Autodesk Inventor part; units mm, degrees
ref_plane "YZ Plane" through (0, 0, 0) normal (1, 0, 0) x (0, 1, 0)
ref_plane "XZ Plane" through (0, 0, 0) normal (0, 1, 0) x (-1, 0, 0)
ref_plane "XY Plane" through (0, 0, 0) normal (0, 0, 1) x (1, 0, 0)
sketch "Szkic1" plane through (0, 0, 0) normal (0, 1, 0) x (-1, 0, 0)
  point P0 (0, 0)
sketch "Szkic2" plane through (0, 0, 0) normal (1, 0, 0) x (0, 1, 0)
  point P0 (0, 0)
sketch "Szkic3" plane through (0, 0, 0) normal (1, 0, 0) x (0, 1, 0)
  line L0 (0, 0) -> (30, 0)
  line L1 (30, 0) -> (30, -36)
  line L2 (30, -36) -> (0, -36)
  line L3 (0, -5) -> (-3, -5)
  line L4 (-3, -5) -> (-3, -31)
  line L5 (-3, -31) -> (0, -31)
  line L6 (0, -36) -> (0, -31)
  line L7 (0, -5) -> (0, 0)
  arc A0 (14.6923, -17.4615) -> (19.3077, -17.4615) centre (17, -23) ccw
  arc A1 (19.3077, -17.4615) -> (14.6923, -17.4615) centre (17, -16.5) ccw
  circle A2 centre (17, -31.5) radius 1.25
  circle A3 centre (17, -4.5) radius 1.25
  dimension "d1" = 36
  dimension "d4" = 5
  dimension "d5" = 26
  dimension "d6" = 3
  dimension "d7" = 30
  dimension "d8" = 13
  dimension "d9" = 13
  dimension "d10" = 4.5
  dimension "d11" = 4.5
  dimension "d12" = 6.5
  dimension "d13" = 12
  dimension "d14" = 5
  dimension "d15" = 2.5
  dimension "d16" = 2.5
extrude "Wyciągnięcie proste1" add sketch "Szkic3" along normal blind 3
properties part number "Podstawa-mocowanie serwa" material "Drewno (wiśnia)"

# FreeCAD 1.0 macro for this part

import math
import FreeCAD as App
import Part
import Sketcher
from FreeCAD import Vector


def add_polygon(sketch, points):
    """Adds a closed chain of lines whose ends are joined by coincident constraints."""
    first, n = sketch.GeometryCount, len(points)
    for a, b in zip(points, points[1:] + points[:1]):
        sketch.addGeometry(Part.LineSegment(App.Vector(*a, 0), App.Vector(*b, 0)), False)
    for i in range(n):
        sketch.addConstraint(Sketcher.Constraint("Coincident", first + i, 2, first + (i + 1) % n, 1))

doc = App.newDocument("Part")
body = doc.addObject("PartDesign::Body", "Body")

sketch1 = doc.addObject("Sketcher::SketchObject", "Sketch")
body.addObject(sketch1)
sketch1.AttachmentSupport = (doc.YZ_Plane, [""])
sketch1.MapMode = "FlatFace"
add_polygon(sketch1, [(30, 0), (0, 0), (0, -5), (-3, -5), (-3, -31), (0, -31), (0, -36), (30, -36)])
sketch1.addGeometry(Part.Circle(Vector(17, -31.5, 0), Vector(0, 0, 1), 1.25), False)
sketch1.addGeometry(Part.ArcOfCircle(Part.Circle(Vector(17, -23, 0), Vector(0, 0, 1), 6.000038), math.radians(112.619791), math.radians(427.380209)), False)
sketch1.addGeometry(Part.ArcOfCircle(Part.Circle(Vector(17, -16.5, 0), Vector(0, 0, 1), 2.499992), math.radians(-22.618983), math.radians(202.618983)), False)
sketch1.addGeometry(Part.Circle(Vector(17, -4.5, 0), Vector(0, 0, 1), 1.25), False)
sketch1.addConstraint(Sketcher.Constraint("Coincident", 9, 1, 10, 2))
sketch1.addConstraint(Sketcher.Constraint("Coincident", 10, 1, 9, 2))
sketch1.addConstraint(Sketcher.Constraint("Horizontal", 0))
sketch1.addConstraint(Sketcher.Constraint("Vertical", 1))
sketch1.addConstraint(Sketcher.Constraint("Horizontal", 2))
sketch1.addConstraint(Sketcher.Constraint("Vertical", 3))
sketch1.addConstraint(Sketcher.Constraint("Horizontal", 4))
sketch1.addConstraint(Sketcher.Constraint("Vertical", 5))
sketch1.addConstraint(Sketcher.Constraint("Horizontal", 6))
sketch1.addConstraint(Sketcher.Constraint("Vertical", 7))
sketch1.addConstraint(Sketcher.Constraint("Coincident", 0, 2, -1, 1))
sketch1.addConstraint(Sketcher.Constraint("Equal", 8, 11))
sketch1.addConstraint(Sketcher.Constraint("PointOnObject", 4, 2, -2))
sketch1.addConstraint(Sketcher.Constraint("Horizontal", 9, 1, 10, 1))
sketch1.addConstraint(Sketcher.Constraint("Vertical", 8, 3, 9, 3))
sketch1.addConstraint(Sketcher.Constraint("Vertical", 10, 3, 11, 3))
sketch1.addConstraint(Sketcher.Constraint("Equal", 1, 5))
sketch1.addConstraint(Sketcher.Constraint("Radius", 9, 6.0))
sketch1.addConstraint(Sketcher.Constraint("Diameter", 8, 2.5))
sketch1.addConstraint(Sketcher.Constraint("Radius", 10, 2.5))
sketch1.addConstraint(Sketcher.Constraint("DistanceX", 0, 2, 0, 1, 30.0))
sketch1.addConstraint(Sketcher.Constraint("DistanceX", 2, 2, 2, 1, 3.0))
sketch1.addConstraint(Sketcher.Constraint("DistanceY", 1, 2, 1, 1, 5.0))
sketch1.addConstraint(Sketcher.Constraint("DistanceY", 3, 2, 3, 1, 26.0))
sketch1.addConstraint(Sketcher.Constraint("DistanceY", 10, 3, 11, 3, 12.0))
sketch1.addConstraint(Sketcher.Constraint("DistanceY", 5, 2, 9, 3, 13.0))
sketch1.addConstraint(Sketcher.Constraint("DistanceX", 8, 3, 6, 2, 13.0))
sketch1.addConstraint(Sketcher.Constraint("DistanceY", 11, 3, -1, 1, 4.5))
sketch1.addConstraint(Sketcher.Constraint("DistanceY", 5, 2, 8, 3, 4.5))
pad1 = doc.addObject("PartDesign::Pad", "Pad")
body.addObject(pad1)
pad1.Profile = sketch1
pad1.Length = 3

doc.recompute()
